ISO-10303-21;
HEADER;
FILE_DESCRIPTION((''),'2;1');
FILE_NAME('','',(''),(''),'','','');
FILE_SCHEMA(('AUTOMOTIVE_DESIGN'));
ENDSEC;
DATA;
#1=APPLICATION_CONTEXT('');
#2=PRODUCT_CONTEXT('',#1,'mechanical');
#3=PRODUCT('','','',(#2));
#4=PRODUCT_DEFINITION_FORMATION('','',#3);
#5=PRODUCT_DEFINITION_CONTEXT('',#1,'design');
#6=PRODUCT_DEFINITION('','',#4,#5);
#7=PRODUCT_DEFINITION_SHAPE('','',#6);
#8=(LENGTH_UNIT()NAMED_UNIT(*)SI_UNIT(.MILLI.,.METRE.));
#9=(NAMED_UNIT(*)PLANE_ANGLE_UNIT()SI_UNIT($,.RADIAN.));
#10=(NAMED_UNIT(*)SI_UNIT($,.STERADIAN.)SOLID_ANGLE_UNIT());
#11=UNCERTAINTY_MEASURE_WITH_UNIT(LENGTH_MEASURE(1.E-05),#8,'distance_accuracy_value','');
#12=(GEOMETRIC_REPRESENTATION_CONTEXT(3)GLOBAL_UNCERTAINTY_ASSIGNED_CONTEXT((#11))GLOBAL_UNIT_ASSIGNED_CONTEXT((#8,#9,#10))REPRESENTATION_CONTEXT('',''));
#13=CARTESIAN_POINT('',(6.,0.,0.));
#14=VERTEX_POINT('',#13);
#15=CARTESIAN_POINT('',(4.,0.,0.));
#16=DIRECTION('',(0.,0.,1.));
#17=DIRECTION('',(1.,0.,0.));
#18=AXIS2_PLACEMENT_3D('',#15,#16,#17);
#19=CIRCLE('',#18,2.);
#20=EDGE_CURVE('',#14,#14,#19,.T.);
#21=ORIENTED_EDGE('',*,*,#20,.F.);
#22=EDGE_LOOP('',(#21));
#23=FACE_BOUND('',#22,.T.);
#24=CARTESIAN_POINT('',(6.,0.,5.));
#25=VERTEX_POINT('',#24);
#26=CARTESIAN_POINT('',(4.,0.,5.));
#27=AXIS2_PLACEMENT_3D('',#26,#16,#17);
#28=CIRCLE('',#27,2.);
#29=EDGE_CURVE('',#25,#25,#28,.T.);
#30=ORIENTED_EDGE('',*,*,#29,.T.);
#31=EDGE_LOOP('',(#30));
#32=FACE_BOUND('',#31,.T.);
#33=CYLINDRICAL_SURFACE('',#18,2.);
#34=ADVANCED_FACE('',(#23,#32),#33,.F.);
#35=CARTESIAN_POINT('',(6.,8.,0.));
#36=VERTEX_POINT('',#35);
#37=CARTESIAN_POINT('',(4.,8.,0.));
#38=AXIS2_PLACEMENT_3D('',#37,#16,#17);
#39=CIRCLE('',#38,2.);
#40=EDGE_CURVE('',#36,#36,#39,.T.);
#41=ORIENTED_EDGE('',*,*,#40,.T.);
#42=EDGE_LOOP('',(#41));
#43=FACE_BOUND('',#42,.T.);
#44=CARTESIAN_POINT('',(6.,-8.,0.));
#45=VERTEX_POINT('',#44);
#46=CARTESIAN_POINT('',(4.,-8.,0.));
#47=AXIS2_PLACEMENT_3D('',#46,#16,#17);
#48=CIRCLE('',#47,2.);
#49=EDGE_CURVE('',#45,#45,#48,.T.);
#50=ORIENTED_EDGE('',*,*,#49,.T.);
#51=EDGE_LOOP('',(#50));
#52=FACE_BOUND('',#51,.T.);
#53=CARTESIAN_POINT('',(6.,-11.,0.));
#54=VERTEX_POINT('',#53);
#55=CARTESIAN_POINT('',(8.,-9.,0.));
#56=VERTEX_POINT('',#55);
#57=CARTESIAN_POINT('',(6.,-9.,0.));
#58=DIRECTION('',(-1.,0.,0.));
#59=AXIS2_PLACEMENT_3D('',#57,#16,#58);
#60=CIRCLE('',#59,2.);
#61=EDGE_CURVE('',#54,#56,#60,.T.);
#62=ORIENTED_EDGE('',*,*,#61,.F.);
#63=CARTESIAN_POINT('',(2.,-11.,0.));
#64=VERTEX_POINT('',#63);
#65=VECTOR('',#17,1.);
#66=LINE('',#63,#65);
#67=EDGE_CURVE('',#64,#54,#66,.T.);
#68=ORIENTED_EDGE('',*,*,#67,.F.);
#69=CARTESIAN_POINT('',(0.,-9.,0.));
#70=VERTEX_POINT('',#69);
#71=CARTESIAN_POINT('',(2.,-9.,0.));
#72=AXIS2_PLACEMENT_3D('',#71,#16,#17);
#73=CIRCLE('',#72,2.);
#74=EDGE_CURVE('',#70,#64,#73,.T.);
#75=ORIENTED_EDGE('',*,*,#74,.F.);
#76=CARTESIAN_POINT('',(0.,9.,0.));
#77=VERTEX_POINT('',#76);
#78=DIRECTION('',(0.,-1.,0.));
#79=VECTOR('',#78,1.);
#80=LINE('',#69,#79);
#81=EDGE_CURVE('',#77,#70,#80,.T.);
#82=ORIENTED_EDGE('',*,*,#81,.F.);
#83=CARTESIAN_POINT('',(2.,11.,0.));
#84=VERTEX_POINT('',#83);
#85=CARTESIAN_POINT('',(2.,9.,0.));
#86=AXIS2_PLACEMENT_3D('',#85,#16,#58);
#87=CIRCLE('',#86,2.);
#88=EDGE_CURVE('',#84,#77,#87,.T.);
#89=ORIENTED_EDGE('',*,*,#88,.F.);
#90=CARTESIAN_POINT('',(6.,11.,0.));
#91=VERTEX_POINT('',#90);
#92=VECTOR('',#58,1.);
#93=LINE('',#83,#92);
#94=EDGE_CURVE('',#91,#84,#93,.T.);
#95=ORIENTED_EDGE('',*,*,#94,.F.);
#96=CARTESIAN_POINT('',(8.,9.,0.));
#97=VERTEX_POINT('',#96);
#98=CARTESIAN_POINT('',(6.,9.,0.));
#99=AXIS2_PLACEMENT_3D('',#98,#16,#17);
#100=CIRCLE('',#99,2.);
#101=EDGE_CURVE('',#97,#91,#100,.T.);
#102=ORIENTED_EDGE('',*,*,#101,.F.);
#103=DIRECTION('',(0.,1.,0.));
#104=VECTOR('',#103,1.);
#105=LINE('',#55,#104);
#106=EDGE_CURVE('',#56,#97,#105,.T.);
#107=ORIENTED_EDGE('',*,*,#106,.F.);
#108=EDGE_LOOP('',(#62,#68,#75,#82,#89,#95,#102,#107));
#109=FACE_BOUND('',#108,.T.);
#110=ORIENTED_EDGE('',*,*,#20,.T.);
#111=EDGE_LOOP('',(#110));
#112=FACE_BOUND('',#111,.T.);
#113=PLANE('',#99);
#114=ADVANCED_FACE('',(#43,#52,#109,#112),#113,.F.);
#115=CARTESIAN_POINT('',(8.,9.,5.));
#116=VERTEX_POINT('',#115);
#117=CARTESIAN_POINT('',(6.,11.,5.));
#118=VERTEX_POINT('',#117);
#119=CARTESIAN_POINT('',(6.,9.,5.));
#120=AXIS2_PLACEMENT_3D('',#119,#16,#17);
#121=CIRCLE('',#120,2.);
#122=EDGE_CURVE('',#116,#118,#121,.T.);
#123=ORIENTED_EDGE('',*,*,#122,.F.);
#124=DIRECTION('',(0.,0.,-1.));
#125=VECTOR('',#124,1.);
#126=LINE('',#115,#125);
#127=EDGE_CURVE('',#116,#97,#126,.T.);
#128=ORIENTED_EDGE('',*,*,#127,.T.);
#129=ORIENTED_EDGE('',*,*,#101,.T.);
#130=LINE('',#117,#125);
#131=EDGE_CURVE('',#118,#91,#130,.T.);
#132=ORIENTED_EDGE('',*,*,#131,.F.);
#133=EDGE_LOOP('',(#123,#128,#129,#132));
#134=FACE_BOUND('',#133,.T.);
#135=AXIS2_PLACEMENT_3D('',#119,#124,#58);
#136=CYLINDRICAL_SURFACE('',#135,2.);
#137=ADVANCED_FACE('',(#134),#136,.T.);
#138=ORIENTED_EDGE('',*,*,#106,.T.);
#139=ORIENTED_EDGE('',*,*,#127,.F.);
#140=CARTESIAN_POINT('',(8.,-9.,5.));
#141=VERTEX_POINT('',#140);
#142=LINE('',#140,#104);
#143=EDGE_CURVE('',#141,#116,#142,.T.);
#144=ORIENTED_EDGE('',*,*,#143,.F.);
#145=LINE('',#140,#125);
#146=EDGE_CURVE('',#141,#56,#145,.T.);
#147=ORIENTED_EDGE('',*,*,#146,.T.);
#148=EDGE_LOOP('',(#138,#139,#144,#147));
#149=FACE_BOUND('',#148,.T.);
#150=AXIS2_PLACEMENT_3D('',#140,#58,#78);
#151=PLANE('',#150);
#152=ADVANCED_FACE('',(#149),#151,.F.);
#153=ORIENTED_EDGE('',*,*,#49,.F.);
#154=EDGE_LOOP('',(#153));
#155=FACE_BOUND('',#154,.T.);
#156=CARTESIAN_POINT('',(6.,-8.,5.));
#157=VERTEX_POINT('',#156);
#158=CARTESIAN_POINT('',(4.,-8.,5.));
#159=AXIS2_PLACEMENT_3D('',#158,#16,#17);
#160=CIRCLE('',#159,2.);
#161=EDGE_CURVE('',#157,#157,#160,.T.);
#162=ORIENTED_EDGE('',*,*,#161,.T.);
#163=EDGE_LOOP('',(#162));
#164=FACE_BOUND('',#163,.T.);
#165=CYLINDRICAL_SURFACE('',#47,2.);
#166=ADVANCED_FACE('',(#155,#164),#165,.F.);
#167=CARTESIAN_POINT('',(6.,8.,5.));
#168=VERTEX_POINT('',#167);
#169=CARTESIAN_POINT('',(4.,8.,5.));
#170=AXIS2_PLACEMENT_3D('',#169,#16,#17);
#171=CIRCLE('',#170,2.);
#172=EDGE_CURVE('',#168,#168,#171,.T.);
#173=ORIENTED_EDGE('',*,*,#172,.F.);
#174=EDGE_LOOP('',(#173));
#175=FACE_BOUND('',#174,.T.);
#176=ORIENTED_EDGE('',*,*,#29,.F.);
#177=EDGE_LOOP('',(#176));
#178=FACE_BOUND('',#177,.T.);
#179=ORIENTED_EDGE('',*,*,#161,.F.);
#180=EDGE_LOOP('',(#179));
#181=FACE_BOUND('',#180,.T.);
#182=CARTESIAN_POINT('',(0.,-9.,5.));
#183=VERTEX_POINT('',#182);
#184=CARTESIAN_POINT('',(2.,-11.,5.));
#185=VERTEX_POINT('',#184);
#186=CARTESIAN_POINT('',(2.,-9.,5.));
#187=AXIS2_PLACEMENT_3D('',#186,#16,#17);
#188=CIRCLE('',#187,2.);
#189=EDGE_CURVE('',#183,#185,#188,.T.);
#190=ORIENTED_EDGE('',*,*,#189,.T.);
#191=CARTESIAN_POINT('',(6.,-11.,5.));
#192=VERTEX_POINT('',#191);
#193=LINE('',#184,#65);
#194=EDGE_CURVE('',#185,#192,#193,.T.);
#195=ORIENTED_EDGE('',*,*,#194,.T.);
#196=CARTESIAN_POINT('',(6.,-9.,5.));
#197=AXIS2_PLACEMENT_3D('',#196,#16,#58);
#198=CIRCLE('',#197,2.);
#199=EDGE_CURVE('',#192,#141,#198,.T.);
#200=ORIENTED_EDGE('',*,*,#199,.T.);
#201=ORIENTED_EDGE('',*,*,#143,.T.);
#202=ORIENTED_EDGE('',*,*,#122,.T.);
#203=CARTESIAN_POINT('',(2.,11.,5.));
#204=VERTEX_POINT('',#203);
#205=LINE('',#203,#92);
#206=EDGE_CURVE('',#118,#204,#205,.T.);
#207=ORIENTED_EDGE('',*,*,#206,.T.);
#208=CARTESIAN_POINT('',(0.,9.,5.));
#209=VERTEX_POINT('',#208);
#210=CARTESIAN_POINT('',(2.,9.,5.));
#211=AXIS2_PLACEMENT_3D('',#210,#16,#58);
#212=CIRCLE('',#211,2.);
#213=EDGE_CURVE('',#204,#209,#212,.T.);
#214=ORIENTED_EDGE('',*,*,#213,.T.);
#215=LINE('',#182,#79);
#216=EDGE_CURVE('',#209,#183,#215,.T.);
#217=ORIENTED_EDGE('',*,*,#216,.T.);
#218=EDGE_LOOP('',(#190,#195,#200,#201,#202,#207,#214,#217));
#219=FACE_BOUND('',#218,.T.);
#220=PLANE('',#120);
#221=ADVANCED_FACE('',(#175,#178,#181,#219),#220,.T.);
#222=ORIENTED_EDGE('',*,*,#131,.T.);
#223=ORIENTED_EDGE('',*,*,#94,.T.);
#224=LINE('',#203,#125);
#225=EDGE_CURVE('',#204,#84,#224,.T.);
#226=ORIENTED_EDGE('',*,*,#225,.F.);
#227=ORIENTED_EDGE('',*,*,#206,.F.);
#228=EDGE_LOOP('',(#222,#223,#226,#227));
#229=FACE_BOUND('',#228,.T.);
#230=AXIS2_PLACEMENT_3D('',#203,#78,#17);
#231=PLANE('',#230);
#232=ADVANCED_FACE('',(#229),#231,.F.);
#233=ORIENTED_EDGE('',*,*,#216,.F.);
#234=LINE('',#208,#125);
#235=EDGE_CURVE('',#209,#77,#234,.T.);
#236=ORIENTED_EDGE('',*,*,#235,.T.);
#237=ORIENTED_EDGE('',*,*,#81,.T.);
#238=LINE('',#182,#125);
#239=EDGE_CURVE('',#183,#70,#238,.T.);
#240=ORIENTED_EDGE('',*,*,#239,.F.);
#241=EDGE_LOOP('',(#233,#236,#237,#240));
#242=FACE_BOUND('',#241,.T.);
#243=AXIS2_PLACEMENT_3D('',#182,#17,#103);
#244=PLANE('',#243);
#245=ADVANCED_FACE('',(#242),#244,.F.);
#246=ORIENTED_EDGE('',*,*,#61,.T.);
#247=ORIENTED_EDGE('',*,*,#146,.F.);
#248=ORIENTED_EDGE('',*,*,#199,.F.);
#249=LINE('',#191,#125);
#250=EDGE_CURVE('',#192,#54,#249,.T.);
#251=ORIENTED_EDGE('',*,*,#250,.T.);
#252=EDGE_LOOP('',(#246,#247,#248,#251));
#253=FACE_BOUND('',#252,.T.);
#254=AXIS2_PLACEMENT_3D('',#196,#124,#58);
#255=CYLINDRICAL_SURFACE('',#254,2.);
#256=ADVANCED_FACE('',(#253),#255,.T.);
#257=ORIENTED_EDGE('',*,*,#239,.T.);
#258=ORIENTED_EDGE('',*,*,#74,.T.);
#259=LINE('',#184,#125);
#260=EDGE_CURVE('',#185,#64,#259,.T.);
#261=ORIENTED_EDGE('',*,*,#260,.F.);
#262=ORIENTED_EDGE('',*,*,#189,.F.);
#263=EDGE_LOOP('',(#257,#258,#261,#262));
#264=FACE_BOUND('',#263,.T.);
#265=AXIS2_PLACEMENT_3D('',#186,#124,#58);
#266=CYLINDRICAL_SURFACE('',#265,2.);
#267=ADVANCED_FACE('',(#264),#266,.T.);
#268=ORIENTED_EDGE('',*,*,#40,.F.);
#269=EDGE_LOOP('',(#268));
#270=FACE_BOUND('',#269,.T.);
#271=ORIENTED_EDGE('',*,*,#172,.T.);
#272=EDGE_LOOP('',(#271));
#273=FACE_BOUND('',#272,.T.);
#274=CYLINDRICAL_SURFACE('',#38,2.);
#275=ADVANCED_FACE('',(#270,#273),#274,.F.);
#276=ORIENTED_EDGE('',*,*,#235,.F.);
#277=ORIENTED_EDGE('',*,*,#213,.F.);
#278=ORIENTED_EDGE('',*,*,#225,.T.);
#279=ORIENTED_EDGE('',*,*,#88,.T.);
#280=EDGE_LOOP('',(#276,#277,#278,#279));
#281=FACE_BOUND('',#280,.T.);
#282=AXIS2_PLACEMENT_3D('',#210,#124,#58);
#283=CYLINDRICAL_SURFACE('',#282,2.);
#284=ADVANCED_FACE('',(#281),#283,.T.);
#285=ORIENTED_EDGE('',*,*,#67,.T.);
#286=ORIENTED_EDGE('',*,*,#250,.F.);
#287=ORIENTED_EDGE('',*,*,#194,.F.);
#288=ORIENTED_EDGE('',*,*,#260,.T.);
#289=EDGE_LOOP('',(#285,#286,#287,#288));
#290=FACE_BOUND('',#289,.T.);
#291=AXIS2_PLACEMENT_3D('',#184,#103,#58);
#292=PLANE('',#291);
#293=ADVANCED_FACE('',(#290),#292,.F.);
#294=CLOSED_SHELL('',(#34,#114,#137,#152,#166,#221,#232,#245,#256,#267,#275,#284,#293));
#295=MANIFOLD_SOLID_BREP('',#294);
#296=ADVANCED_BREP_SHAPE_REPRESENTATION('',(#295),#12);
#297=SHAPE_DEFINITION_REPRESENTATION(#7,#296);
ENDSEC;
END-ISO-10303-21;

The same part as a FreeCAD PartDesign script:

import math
import FreeCAD as App
import Part
import Sketcher

V = App.Vector

doc = App.newDocument("Part")
body = doc.addObject("PartDesign::Body", "Body")

# Sketch on XY plane
sketch1 = doc.addObject("Sketcher::SketchObject", "Sketch")
body.addObject(sketch1)
sketch1.AttachmentSupport = (doc.XY_Plane, [""])
sketch1.MapMode = "FlatFace"
sketch1.addGeometry([
    Part.LineSegment(V(0, 9, 0), V(0, -9, 0)),  # 0
    Part.ArcOfCircle(Part.Circle(V(2, -9, 0), V(0, 0, 1), 2), math.radians(-180), math.radians(-90)),  # 1
    Part.LineSegment(V(2, -11, 0), V(6, -11, 0)),  # 2
    Part.ArcOfCircle(Part.Circle(V(6, -9, 0), V(0, 0, 1), 2), math.radians(-90), math.radians(0)),  # 3
    Part.LineSegment(V(8, -9, 0), V(8, 9, 0)),  # 4
    Part.ArcOfCircle(Part.Circle(V(6, 9, 0), V(0, 0, 1), 2), math.radians(0), math.radians(90)),  # 5
    Part.LineSegment(V(6, 11, 0), V(2, 11, 0)),  # 6
    Part.ArcOfCircle(Part.Circle(V(2, 9, 0), V(0, 0, 1), 2), math.radians(90), math.radians(180)),  # 7
], False)
sketch1.addConstraint([
    Sketcher.Constraint("Tangent", 0, 2, 1, 1),
    Sketcher.Constraint("Tangent", 1, 2, 2, 1),
    Sketcher.Constraint("Tangent", 2, 2, 3, 1),
    Sketcher.Constraint("Tangent", 3, 2, 4, 1),
    Sketcher.Constraint("Tangent", 4, 2, 5, 1),
    Sketcher.Constraint("Tangent", 5, 2, 6, 1),
    Sketcher.Constraint("Tangent", 6, 2, 7, 1),
    Sketcher.Constraint("Tangent", 7, 2, 0, 1),
    Sketcher.Constraint("Vertical", 0),
    Sketcher.Constraint("Horizontal", 2),
    Sketcher.Constraint("Vertical", 4),
    Sketcher.Constraint("Horizontal", 6),
    Sketcher.Constraint("Equal", 1, 3),
    Sketcher.Constraint("Equal", 3, 5),
    Sketcher.Constraint("Equal", 5, 7),
    Sketcher.Constraint("Symmetric", 0, 2, 7, 2, -1, 1),
    Sketcher.Constraint("Radius", 1, 2.0),
    Sketcher.Constraint("DistanceX", 2, 1, 2, 2, 4.0),
    Sketcher.Constraint("DistanceY", 0, 2, 0, 1, 18.0),
])
pad1 = doc.addObject("PartDesign::Pad", "Pad")
body.addObject(pad1)
pad1.Profile = sketch1
pad1.Length = 5

# Sketch on XY plane
sketch2 = doc.addObject("Sketcher::SketchObject", "Sketch001")
body.addObject(sketch2)
sketch2.AttachmentSupport = (doc.XY_Plane, [""])
sketch2.MapMode = "FlatFace"
sketch2.AttachmentOffset = App.Placement(V(0, 0, 5), App.Rotation())
sketch2.addGeometry([
    Part.Circle(V(4, 0, 0), V(0, 0, 1), 2),
    Part.Circle(V(4, 8, 0), V(0, 0, 1), 2),
    Part.Circle(V(4, -8, 0), V(0, 0, 1), 2),
], False)
sketch2.addConstraint([
    Sketcher.Constraint("Equal", 0, 1),
    Sketcher.Constraint("Equal", 1, 2),
    Sketcher.Constraint("Symmetric", 1, 3, 2, 3, -1),
    Sketcher.Constraint("PointOnObject", 0, 3, -1),
    Sketcher.Constraint("Vertical", 0, 3, 1, 3),
    Sketcher.Constraint("Diameter", 0, 4.0),
    Sketcher.Constraint("DistanceX", -1, 1, 0, 3, 4.0),
    Sketcher.Constraint("DistanceY", -1, 1, 1, 3, 8.0),
])
pocket1 = doc.addObject("PartDesign::Pocket", "Pocket")
body.addObject(pocket1)
pocket1.Profile = sketch2
pocket1.Type = "ThroughAll"

doc.recompute()
